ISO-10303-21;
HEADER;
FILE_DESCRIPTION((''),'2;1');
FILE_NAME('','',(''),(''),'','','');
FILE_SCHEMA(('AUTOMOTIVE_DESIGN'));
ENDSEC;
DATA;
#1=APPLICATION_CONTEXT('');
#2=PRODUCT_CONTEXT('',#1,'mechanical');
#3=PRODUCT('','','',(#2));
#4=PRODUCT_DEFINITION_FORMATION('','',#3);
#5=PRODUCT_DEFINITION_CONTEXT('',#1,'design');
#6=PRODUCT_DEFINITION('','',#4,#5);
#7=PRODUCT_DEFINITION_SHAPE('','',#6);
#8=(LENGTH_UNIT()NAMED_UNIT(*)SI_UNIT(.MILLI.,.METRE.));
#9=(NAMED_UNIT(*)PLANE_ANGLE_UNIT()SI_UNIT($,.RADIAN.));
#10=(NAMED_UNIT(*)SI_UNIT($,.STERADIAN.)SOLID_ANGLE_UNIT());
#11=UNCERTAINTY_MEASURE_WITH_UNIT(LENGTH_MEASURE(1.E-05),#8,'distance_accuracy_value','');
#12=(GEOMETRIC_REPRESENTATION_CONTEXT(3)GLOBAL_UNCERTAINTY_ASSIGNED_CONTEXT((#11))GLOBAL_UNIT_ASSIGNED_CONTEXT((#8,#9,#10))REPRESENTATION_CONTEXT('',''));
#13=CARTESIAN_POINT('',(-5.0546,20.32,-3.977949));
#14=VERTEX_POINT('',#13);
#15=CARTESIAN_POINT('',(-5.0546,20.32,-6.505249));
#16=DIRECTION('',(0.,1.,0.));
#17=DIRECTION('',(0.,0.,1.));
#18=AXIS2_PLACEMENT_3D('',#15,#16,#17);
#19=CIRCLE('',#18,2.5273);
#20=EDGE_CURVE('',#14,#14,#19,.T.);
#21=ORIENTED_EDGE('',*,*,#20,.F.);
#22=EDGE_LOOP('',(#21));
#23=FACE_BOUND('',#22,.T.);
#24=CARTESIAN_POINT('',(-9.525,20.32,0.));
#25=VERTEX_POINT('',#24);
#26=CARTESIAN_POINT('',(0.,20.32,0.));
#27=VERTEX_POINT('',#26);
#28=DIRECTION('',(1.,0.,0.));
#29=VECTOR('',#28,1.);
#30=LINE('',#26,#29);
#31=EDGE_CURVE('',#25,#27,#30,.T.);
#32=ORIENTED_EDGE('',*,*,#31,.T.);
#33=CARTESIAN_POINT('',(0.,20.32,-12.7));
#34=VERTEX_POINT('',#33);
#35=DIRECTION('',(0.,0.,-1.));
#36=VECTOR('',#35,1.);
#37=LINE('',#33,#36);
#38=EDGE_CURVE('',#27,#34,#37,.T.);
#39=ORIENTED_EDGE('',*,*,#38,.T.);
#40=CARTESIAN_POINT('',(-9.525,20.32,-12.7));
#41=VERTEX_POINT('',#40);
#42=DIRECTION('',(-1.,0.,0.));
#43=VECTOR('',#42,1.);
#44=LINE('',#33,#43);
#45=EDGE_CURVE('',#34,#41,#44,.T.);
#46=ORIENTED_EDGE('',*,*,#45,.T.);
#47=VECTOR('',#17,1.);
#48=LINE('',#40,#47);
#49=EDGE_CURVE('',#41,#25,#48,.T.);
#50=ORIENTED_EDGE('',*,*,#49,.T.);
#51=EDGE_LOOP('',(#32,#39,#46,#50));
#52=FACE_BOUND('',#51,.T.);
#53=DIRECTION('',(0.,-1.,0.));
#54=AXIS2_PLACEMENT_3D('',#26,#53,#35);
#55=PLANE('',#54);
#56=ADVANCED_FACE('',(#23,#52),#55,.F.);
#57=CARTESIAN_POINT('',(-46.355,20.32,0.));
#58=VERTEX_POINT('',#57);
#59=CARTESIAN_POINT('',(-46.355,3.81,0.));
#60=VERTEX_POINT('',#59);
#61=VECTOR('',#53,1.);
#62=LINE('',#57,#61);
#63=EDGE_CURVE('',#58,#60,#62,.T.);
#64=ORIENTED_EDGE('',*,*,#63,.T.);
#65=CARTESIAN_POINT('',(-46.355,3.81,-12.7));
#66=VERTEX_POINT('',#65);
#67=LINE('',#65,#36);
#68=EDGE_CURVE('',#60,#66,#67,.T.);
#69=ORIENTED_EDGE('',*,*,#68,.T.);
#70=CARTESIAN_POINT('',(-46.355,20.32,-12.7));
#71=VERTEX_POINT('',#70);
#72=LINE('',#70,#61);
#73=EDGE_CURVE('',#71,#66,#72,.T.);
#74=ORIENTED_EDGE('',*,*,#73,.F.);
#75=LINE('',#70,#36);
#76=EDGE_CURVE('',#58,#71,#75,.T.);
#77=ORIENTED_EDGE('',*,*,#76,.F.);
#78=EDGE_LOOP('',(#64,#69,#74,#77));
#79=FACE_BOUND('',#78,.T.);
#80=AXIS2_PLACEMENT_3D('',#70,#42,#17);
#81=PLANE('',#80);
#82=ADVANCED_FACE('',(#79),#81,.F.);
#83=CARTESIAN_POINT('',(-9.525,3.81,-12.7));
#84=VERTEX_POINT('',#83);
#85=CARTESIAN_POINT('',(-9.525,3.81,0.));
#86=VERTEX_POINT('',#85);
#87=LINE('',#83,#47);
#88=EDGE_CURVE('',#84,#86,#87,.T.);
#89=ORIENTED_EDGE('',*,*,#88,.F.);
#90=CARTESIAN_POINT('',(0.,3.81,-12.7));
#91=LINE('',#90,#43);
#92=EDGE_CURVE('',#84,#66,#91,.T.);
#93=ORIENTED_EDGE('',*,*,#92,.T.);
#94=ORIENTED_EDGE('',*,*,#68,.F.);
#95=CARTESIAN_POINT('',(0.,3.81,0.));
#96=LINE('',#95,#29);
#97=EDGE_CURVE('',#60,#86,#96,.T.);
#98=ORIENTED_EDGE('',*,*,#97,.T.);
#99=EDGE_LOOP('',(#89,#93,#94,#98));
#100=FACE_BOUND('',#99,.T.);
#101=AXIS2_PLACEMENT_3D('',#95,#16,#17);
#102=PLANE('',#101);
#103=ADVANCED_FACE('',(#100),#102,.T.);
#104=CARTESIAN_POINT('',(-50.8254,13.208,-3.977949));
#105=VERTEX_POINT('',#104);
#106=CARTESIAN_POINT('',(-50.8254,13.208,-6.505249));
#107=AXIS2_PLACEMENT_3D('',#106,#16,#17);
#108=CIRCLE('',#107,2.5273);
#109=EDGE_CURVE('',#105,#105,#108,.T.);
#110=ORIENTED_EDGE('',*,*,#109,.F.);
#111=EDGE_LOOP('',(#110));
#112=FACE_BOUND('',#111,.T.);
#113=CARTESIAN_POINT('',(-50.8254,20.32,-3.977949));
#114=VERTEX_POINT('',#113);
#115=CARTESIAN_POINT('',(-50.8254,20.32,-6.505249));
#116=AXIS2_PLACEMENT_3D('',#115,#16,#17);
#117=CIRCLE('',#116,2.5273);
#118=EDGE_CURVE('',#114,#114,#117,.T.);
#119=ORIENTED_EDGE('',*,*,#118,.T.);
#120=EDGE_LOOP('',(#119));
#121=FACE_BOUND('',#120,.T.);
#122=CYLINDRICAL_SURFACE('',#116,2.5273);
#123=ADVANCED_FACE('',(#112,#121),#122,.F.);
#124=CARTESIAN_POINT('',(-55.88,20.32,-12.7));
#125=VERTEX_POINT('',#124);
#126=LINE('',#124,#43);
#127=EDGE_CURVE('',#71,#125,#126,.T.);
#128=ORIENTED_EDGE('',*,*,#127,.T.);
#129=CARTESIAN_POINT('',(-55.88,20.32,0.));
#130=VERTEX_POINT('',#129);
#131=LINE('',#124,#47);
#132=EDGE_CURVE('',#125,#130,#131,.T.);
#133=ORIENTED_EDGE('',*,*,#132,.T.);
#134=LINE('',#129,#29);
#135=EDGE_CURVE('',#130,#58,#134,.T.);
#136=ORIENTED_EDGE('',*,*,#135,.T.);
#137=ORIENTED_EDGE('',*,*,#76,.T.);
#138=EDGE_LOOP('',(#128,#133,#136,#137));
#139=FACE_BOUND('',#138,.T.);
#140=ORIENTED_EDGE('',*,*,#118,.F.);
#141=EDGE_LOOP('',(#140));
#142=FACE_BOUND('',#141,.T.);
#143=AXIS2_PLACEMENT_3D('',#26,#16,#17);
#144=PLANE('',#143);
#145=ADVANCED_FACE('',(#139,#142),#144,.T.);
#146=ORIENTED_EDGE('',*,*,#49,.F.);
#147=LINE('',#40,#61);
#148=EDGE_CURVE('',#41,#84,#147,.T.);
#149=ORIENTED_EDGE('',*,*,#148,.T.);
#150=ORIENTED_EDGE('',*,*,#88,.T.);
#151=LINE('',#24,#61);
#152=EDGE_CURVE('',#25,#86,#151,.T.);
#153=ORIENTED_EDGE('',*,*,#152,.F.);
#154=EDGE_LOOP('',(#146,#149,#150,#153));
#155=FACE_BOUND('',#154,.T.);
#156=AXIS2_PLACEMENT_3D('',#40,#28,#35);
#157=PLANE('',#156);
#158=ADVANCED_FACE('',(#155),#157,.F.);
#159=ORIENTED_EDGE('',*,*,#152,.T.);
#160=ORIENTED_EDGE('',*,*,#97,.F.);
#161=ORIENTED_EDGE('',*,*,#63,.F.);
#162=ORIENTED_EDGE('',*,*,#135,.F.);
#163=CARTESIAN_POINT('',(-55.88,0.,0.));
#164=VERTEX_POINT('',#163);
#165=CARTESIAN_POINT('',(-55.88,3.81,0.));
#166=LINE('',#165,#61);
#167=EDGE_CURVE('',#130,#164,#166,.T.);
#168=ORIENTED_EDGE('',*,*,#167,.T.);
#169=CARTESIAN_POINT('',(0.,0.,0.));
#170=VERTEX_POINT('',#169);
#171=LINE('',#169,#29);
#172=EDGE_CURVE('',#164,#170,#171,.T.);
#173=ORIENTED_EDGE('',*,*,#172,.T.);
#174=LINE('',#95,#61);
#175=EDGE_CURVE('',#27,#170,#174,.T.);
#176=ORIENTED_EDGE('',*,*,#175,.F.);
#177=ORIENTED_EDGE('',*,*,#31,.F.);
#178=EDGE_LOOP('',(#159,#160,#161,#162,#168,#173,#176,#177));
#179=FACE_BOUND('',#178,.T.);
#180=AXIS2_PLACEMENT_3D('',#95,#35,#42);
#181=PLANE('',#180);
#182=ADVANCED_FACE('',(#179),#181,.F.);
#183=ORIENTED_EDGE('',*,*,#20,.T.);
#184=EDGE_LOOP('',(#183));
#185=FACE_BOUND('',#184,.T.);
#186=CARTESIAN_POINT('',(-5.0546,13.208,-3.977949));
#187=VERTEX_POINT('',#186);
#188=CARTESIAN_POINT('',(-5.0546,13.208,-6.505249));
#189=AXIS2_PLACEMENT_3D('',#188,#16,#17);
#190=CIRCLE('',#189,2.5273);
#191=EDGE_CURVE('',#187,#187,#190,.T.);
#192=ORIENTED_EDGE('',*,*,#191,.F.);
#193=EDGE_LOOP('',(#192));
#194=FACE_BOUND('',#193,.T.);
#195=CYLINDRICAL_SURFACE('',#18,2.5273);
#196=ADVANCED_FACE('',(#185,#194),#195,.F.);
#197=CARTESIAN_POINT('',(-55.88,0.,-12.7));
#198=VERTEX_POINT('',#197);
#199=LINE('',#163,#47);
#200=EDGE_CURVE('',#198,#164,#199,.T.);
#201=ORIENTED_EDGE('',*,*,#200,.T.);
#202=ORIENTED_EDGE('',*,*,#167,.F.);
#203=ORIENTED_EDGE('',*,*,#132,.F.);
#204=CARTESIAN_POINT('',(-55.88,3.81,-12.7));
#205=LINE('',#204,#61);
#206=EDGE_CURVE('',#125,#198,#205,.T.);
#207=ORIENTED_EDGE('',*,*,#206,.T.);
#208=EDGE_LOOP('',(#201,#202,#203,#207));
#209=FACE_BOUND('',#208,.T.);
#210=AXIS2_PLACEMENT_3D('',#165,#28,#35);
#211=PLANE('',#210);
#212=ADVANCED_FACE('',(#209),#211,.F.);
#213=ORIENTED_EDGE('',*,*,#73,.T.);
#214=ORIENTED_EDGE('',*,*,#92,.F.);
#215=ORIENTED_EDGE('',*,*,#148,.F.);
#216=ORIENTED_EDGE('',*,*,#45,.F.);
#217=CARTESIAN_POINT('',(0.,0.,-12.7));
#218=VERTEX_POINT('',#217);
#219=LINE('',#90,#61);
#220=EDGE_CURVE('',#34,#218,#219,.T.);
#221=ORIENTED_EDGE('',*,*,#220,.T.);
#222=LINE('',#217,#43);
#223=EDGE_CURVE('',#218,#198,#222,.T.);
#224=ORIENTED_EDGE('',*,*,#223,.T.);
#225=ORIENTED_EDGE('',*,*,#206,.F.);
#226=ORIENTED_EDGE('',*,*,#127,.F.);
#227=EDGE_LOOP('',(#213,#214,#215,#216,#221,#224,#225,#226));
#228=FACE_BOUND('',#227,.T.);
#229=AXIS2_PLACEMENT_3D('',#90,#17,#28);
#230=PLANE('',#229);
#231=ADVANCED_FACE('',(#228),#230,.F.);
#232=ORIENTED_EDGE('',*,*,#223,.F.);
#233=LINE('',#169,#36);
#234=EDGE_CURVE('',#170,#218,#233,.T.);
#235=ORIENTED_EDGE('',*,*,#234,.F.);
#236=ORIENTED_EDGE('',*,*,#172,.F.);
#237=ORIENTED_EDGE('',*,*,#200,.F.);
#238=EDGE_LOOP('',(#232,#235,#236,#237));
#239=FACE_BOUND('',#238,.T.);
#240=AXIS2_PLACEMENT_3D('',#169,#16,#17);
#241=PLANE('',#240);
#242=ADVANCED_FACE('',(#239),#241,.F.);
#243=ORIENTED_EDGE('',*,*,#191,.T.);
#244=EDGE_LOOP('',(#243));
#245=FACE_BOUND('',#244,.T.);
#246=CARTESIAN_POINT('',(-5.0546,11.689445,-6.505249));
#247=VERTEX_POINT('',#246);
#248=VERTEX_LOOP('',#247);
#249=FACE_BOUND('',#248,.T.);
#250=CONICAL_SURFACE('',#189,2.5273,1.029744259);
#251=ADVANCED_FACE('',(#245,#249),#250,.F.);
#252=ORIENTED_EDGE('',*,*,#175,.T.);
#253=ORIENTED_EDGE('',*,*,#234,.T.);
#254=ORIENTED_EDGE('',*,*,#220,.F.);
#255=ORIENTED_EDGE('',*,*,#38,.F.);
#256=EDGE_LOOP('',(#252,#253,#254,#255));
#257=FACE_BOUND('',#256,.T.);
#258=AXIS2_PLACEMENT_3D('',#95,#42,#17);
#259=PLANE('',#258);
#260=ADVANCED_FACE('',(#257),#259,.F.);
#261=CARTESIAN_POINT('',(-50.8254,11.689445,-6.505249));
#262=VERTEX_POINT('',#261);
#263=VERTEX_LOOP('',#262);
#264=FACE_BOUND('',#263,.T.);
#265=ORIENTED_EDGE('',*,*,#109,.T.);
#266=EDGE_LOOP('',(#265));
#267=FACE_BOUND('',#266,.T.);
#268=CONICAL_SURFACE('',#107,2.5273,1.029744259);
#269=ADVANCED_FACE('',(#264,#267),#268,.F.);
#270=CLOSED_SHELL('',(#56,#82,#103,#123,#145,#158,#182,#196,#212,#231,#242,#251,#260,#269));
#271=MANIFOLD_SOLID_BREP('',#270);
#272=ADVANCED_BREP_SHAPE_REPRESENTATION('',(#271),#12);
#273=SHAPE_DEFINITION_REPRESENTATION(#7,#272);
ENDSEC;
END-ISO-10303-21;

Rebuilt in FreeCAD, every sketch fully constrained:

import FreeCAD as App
import Part
import Sketcher
from FreeCAD import Vector
Q = App.Units.Quantity

doc = App.newDocument("Part")
body = doc.addObject("PartDesign::Body", "Body")

# Sketch on XZ plane
sketch1 = body.newObject("Sketcher::SketchObject", "Sketch")
sketch1.AttachmentSupport = (doc.getObject("XZ_Plane"), [""])
sketch1.MapMode = "FlatFace"
sketch1.addGeometry([
    Part.LineSegment(Vector(-56, -13, 0), Vector(-56, 0, 0)),
    Part.LineSegment(Vector(-56, 0, 0), Vector(0, 0, 0)),
    Part.LineSegment(Vector(0, 0, 0), Vector(0, -13, 0)),
    Part.LineSegment(Vector(0, -13, 0), Vector(-56, -13, 0)),
], False)
sketch1.addConstraint([
    Sketcher.Constraint("Coincident", 0, 2, 1, 1),
    Sketcher.Constraint("Coincident", 1, 2, 2, 1),
    Sketcher.Constraint("Coincident", 2, 2, 3, 1),
    Sketcher.Constraint("Coincident", 3, 2, 0, 1),
    Sketcher.Constraint("Vertical", 0),
    Sketcher.Constraint("Horizontal", 1),
    Sketcher.Constraint("Vertical", 2),
    Sketcher.Constraint("Horizontal", 3),
    Sketcher.Constraint("Coincident", 1, 2, -1, 1),
    Sketcher.Constraint("DistanceX", 1, 1, 1, 2, Q("2.2 in")),
    Sketcher.Constraint("DistanceY", 0, 1, 0, 2, Q("0.5 in")),
])
pad1 = body.newObject("PartDesign::Pad", "Pad")
pad1.Profile = sketch1
pad1.Length = Q("0.15 in")
pad1.Reversed = True

# Sketch on XZ plane
sketch2 = body.newObject("Sketcher::SketchObject", "Sketch001")
sketch2.AttachmentSupport = (doc.getObject("XZ_Plane"), [""])
sketch2.MapMode = "FlatFace"
sketch2.AttachmentOffset = App.Placement(Vector(0, 0, -0.15 * 25.4), App.Rotation())
sketch2.addGeometry([
    Part.LineSegment(Vector(-56, -13, 0), Vector(-56, 0, 0)),  # 0
    Part.LineSegment(Vector(-56, 0, 0), Vector(-46, 0, 0)),  # 1
    Part.LineSegment(Vector(-46, 0, 0), Vector(-46, -13, 0)),  # 2
    Part.LineSegment(Vector(-46, -13, 0), Vector(-56, -13, 0)),  # 3
    Part.LineSegment(Vector(-10, -13, 0), Vector(-10, 0, 0)),  # 4
    Part.LineSegment(Vector(-10, 0, 0), Vector(0, 0, 0)),  # 5
    Part.LineSegment(Vector(0, 0, 0), Vector(0, -13, 0)),  # 6
    Part.LineSegment(Vector(0, -13, 0), Vector(-10, -13, 0)),  # 7
], False)
sketch2.addConstraint([
    Sketcher.Constraint("Coincident", 0, 2, 1, 1),
    Sketcher.Constraint("Coincident", 1, 2, 2, 1),
    Sketcher.Constraint("Coincident", 2, 2, 3, 1),
    Sketcher.Constraint("Coincident", 3, 2, 0, 1),
    Sketcher.Constraint("Coincident", 4, 2, 5, 1),
    Sketcher.Constraint("Coincident", 5, 2, 6, 1),
    Sketcher.Constraint("Coincident", 6, 2, 7, 1),
    Sketcher.Constraint("Coincident", 7, 2, 4, 1),
    Sketcher.Constraint("Vertical", 0),
    Sketcher.Constraint("Horizontal", 1),
    Sketcher.Constraint("Vertical", 2),
    Sketcher.Constraint("Horizontal", 3),
    Sketcher.Constraint("Vertical", 4),
    Sketcher.Constraint("Horizontal", 5),
    Sketcher.Constraint("Vertical", 6),
    Sketcher.Constraint("Horizontal", 7),
    Sketcher.Constraint("Coincident", 5, 2, -1, 1),
    Sketcher.Constraint("PointOnObject", 0, 2, -1),
    Sketcher.Constraint("Horizontal", 3, 2, 6, 2),
    Sketcher.Constraint("Equal", 3, 5),
    Sketcher.Constraint("DistanceY", 0, 1, 0, 2, Q("0.5 in")),
    Sketcher.Constraint("DistanceX", 0, 2, -1, 1, Q("2.2 in")),
    Sketcher.Constraint("DistanceX", 1, 1, 1, 2, Q("0.375 in")),
])
pad2 = body.newObject("PartDesign::Pad", "Pad001")
pad2.Profile = sketch2
pad2.Length = Q("0.65 in")
pad2.Reversed = True

# Sketch on XZ plane
sketch3 = body.newObject("Sketcher::SketchObject", "Sketch002")
sketch3.AttachmentSupport = (doc.getObject("XZ_Plane"), [""])
sketch3.MapMode = "FlatFace"
sketch3.AttachmentOffset = App.Placement(Vector(0, 0, -0.8 * 25.4), App.Rotation())
sketch3.addGeometry([
    Part.Circle(Vector(-50.8, -6.5, 0), Vector(0, 0, 1), 2.5),
    Part.Circle(Vector(-5.1, -6.5, 0), Vector(0, 0, 1), 2.5),
], False)
sketch3.addConstraint([
    Sketcher.Constraint("Equal", 0, 1),
    Sketcher.Constraint("Horizontal", 0, 3, 1, 3),
    Sketcher.Constraint("Diameter", 0, Q("0.199 in")),
    Sketcher.Constraint("DistanceX", 0, 3, -1, 1, Q("2.001 in")),
    Sketcher.Constraint("DistanceX", 1, 3, -1, 1, Q("0.199 in")),
    Sketcher.Constraint("DistanceY", 0, 3, -1, 1, Q("6.505249 mm")),
])
doc.recompute()
hole = body.newObject("PartDesign::Hole", "Hole")
hole.Profile = sketch3
hole.ThreadType = "None"
hole.Diameter = Q("0.199 in")
hole.DepthType = "Dimension"
hole.Depth = Q("0.28 in")
hole.DrillPoint = "Angled"
hole.DrillPointAngle = 118
hole.Reversed = True

doc.recompute()
